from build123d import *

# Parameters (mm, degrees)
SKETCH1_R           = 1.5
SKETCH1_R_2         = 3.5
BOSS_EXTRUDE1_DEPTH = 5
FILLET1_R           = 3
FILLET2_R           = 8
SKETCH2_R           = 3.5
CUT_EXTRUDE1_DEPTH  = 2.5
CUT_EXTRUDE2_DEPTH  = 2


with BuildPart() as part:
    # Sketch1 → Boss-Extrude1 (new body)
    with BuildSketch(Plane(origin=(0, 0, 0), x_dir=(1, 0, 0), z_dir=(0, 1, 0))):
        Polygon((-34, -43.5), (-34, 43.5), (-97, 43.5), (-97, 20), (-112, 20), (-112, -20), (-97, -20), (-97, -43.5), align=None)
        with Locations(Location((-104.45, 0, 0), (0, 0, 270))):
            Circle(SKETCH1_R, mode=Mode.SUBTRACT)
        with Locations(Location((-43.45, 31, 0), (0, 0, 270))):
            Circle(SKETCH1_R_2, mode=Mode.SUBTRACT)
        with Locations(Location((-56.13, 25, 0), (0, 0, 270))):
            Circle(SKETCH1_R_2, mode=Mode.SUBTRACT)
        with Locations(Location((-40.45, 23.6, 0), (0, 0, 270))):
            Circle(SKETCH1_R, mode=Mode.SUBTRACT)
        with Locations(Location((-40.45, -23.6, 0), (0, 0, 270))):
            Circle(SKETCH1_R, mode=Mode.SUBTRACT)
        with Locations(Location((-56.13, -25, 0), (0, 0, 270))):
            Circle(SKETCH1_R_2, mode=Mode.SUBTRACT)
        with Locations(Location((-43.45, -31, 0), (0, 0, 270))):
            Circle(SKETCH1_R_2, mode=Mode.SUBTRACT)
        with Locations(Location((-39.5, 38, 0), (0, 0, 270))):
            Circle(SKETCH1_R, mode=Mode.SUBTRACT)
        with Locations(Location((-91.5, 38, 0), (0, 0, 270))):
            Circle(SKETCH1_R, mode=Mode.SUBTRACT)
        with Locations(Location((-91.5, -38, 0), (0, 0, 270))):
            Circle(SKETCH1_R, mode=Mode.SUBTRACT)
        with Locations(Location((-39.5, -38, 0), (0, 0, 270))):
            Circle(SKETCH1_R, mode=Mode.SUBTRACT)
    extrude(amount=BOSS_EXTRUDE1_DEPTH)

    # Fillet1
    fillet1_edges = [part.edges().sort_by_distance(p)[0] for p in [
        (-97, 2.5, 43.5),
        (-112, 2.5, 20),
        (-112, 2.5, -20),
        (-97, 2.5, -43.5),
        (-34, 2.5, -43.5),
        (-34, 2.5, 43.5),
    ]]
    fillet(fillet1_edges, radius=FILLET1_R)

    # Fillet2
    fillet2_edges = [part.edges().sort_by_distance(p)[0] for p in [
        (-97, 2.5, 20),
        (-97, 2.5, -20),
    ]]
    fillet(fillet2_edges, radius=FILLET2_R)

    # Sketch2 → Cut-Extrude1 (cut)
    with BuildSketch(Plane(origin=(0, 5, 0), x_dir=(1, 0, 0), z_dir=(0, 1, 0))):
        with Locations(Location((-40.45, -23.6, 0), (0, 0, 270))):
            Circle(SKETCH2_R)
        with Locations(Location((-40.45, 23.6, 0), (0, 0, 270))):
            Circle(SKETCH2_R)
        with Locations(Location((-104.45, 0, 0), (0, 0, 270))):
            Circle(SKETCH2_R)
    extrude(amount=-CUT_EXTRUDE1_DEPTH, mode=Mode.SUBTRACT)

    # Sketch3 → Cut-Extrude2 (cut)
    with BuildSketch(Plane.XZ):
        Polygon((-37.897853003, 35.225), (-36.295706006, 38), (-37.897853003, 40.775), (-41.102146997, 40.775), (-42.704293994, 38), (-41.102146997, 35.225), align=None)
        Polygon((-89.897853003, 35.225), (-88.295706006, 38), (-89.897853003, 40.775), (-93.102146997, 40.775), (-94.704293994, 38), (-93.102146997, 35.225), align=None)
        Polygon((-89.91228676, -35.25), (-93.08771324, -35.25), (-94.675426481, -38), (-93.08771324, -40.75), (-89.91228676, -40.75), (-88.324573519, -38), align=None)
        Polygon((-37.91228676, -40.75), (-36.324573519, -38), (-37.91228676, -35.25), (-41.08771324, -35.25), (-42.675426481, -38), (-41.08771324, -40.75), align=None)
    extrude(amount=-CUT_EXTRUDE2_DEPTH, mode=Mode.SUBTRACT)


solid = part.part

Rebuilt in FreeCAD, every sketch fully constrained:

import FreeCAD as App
import Part
import Sketcher
from FreeCAD import Vector
Q = App.Units.Quantity


def edges_at(feature, points):
    """Names of the edges that pass closest to the given points."""
    edges = feature.Shape.Edges
    near = lambda p: min(range(len(edges)), key=lambda i: edges[i].distToShape(Part.Vertex(*p))[0])
    return sorted({f"Edge{near(p) + 1}" for p in points})

doc = App.newDocument("Part")
params = doc.addObject("Spreadsheet::Sheet", "Params")
for row, (alias, value) in enumerate([
    ("sketch1_diameter", "3 mm"),
    ("sketch1_diameter2", "7 mm"),
    ("sketch1_width", "63 mm"),
    ("sketch1_width2", "15 mm"),
    ("sketch1_height", "87 mm"),
    ("pad1_length", "5 mm"),
    ("fillet_radius", "3 mm"),
    ("fillet2_radius", "8 mm"),
    ("sketch2_diameter", "7 mm"),
    ("pocket1_length", "2.5 mm"),
    ("pocket2_length", "2 mm"),
], start=1):
    params.set(f"A{row}", alias)
    params.set(f"B{row}", "=" + value)
    params.setAlias(f"B{row}", alias)

body = doc.addObject("PartDesign::Body", "Body")

# Sketch on XZ plane
sketch1 = body.newObject("Sketcher::SketchObject", "Sketch")
sketch1.AttachmentSupport = (doc.getObject("XZ_Plane"), [""])
sketch1.MapMode = "FlatFace"
sketch1.addGeometry(Part.LineSegment(Vector(-34, 43.5, 0), Vector(-34, -43.5, 0)), False)
sketch1.addGeometry(Part.LineSegment(Vector(-34, -43.5, 0), Vector(-97, -43.5, 0)), False)
sketch1.addGeometry(Part.LineSegment(Vector(-97, -43.5, 0), Vector(-97, -20, 0)), False)
sketch1.addGeometry(Part.LineSegment(Vector(-97, -20, 0), Vector(-112, -20, 0)), False)
sketch1.addGeometry(Part.LineSegment(Vector(-112, -20, 0), Vector(-112, 20, 0)), False)
sketch1.addGeometry(Part.LineSegment(Vector(-112, 20, 0), Vector(-97, 20, 0)), False)
sketch1.addGeometry(Part.LineSegment(Vector(-97, 20, 0), Vector(-97, 43.5, 0)), False)
sketch1.addGeometry(Part.LineSegment(Vector(-97, 43.5, 0), Vector(-34, 43.5, 0)), False)
sketch1.addGeometry(Part.Circle(Vector(-91.5, 38, 0), Vector(0, 0, 1), 1.5), False)
sketch1.addGeometry(Part.Circle(Vector(-56.1, 25, 0), Vector(0, 0, 1), 3.5), False)
sketch1.addGeometry(Part.Circle(Vector(-39.5, 38, 0), Vector(0, 0, 1), 1.5), False)
sketch1.addGeometry(Part.Circle(Vector(-43.5, 31, 0), Vector(0, 0, 1), 3.5), False)
sketch1.addGeometry(Part.Circle(Vector(-40.5, 23.6, 0), Vector(0, 0, 1), 1.5), False)
sketch1.addGeometry(Part.Circle(Vector(-104.5, 0, 0), Vector(0, 0, 1), 1.5), False)
sketch1.addGeometry(Part.Circle(Vector(-91.5, -38, 0), Vector(0, 0, 1), 1.5), False)
sketch1.addGeometry(Part.Circle(Vector(-56.1, -25, 0), Vector(0, 0, 1), 3.5), False)
sketch1.addGeometry(Part.Circle(Vector(-40.5, -23.6, 0), Vector(0, 0, 1), 1.5), False)
sketch1.addGeometry(Part.Circle(Vector(-43.5, -31, 0), Vector(0, 0, 1), 3.5), False)
sketch1.addGeometry(Part.Circle(Vector(-39.5, -38, 0), Vector(0, 0, 1), 1.5), False)
sketch1.addConstraint(Sketcher.Constraint("Coincident", 0, 2, 1, 1))
sketch1.addConstraint(Sketcher.Constraint("Coincident", 1, 2, 2, 1))
sketch1.addConstraint(Sketcher.Constraint("Coincident", 2, 2, 3, 1))
sketch1.addConstraint(Sketcher.Constraint("Coincident", 3, 2, 4, 1))
sketch1.addConstraint(Sketcher.Constraint("Coincident", 4, 2, 5, 1))
sketch1.addConstraint(Sketcher.Constraint("Coincident", 5, 2, 6, 1))
sketch1.addConstraint(Sketcher.Constraint("Coincident", 6, 2, 7, 1))
sketch1.addConstraint(Sketcher.Constraint("Coincident", 7, 2, 0, 1))
sketch1.addConstraint(Sketcher.Constraint("Vertical", 0))
sketch1.addConstraint(Sketcher.Constraint("Horizontal", 1))
sketch1.addConstraint(Sketcher.Constraint("Vertical", 2))
sketch1.addConstraint(Sketcher.Constraint("Horizontal", 3))
sketch1.addConstraint(Sketcher.Constraint("Vertical", 4))
sketch1.addConstraint(Sketcher.Constraint("Horizontal", 5))
sketch1.addConstraint(Sketcher.Constraint("Vertical", 6))
sketch1.addConstraint(Sketcher.Constraint("Horizontal", 7))
sketch1.addConstraint(Sketcher.Constraint("Equal", 8, 10))
sketch1.addConstraint(Sketcher.Constraint("Equal", 9, 11))
sketch1.addConstraint(Sketcher.Constraint("Equal", 10, 12))
sketch1.addConstraint(Sketcher.Constraint("Equal", 12, 13))
sketch1.addConstraint(Sketcher.Constraint("Equal", 13, 14))
sketch1.addConstraint(Sketcher.Constraint("Equal", 11, 15))
sketch1.addConstraint(Sketcher.Constraint("Equal", 14, 16))
sketch1.addConstraint(Sketcher.Constraint("Equal", 15, 17))
sketch1.addConstraint(Sketcher.Constraint("Equal", 16, 18))
sketch1.addConstraint(Sketcher.Constraint("Symmetric", 8, 3, 14, 3, -1))
sketch1.addConstraint(Sketcher.Constraint("Symmetric", 9, 3, 15, 3, -1))
sketch1.addConstraint(Sketcher.Constraint("Symmetric", 12, 3, 16, 3, -1))
sketch1.addConstraint(Sketcher.Constraint("Symmetric", 11, 3, 17, 3, -1))
sketch1.addConstraint(Sketcher.Constraint("Symmetric", 10, 3, 18, 3, -1))
sketch1.addConstraint(Sketcher.Constraint("Symmetric", 2, 2, 5, 2, -1))
sketch1.addConstraint(Sketcher.Constraint("PointOnObject", 13, 3, -1))
sketch1.addConstraint(Sketcher.Constraint("Horizontal", 8, 3, 10, 3))
sketch1.addConstraint(Sketcher.Constraint("Equal", 2, 6))
sketch1.addConstraint(Sketcher.Constraint("Diameter", 8, Q("3 mm")))
sketch1.addConstraint(Sketcher.Constraint("Diameter", 9, Q("7 mm")))
sketch1.addConstraint(Sketcher.Constraint("DistanceX", 1, 2, 1, 1, Q("63 mm")))
sketch1.addConstraint(Sketcher.Constraint("DistanceX", 3, 2, 3, 1, Q("15 mm")))
sketch1.addConstraint(Sketcher.Constraint("DistanceY", 0, 2, 0, 1, Q("87 mm")))
sketch1.addConstraint(Sketcher.Constraint("DistanceY", 4, 1, 4, 2, Q("40 mm")))
sketch1.addConstraint(Sketcher.Constraint("DistanceY", -1, 1, 8, 3, Q("38 mm")))
sketch1.addConstraint(Sketcher.Constraint("DistanceY", -1, 1, 9, 3, Q("25 mm")))
sketch1.addConstraint(Sketcher.Constraint("DistanceY", -1, 1, 11, 3, Q("31 mm")))
sketch1.addConstraint(Sketcher.Constraint("DistanceX", 0, 2, -1, 1, Q("34 mm")))
sketch1.addConstraint(Sketcher.Constraint("DistanceX", 8, 3, 10, 3, Q("52 mm")))
sketch1.addConstraint(Sketcher.Constraint("DistanceX", 11, 3, 12, 3, Q("3 mm")))
sketch1.addConstraint(Sketcher.Constraint("DistanceX", 13, 3, 12, 3, Q("64 mm")))
sketch1.addConstraint(Sketcher.Constraint("DistanceX", 8, 3, -1, 1, Q("91.5 mm")))
sketch1.addConstraint(Sketcher.Constraint("DistanceY", -1, 1, 12, 3, Q("23.6 mm")))
sketch1.addConstraint(Sketcher.Constraint("DistanceX", 9, 3, -1, 1, Q("56.13 mm")))
sketch1.addConstraint(Sketcher.Constraint("DistanceX", 11, 3, -1, 1, Q("43.45 mm")))
sketch1.setExpression("Constraints[34]", "Params.sketch1_diameter")
sketch1.setExpression("Constraints[35]", "Params.sketch1_diameter2")
sketch1.setExpression("Constraints[36]", "Params.sketch1_width")
sketch1.setExpression("Constraints[37]", "Params.sketch1_width2")
sketch1.setExpression("Constraints[38]", "Params.sketch1_height")
pad1 = body.newObject("PartDesign::Pad", "Pad")
pad1.Profile = sketch1
pad1.setExpression("Length", "Params.pad1_length")
pad1.Reversed = True
doc.recompute()

fillet = body.newObject("PartDesign::Fillet", "Fillet")
fillet.Base = (pad1, edges_at(pad1, [
    (-97, 2.5, 43.5),
    (-112, 2.5, 20),
    (-112, 2.5, -20),
    (-97, 2.5, -43.5),
    (-34, 2.5, -43.5),
    (-34, 2.5, 43.5),
]))
fillet.setExpression("Radius", "Params.fillet_radius")
doc.recompute()

fillet2 = body.newObject("PartDesign::Fillet", "Fillet001")
fillet2.Base = (fillet, edges_at(fillet, [(-97, 2.5, 20), (-97, 2.5, -20)]))
fillet2.setExpression("Radius", "Params.fillet2_radius")

# Sketch on XZ plane
sketch2 = body.newObject("Sketcher::SketchObject", "Sketch001")
sketch2.AttachmentSupport = (doc.getObject("XZ_Plane"), [""])
sketch2.MapMode = "FlatFace"
sketch2.AttachmentOffset = App.Placement(Vector(0, 0, -5), App.Rotation())
sketch2.addGeometry(Part.Circle(Vector(-40.5, 23.6, 0), Vector(0, 0, 1), 3.5), False)
sketch2.addGeometry(Part.Circle(Vector(-40.5, -23.6, 0), Vector(0, 0, 1), 3.5), False)
sketch2.addGeometry(Part.Circle(Vector(-104.5, 0, 0), Vector(0, 0, 1), 3.5), False)
sketch2.addConstraint(Sketcher.Constraint("Equal", 0, 1))
sketch2.addConstraint(Sketcher.Constraint("Equal", 1, 2))
sketch2.addConstraint(Sketcher.Constraint("Symmetric", 0, 3, 1, 3, -1))
sketch2.addConstraint(Sketcher.Constraint("PointOnObject", 2, 3, -1))
sketch2.addConstraint(Sketcher.Constraint("Diameter", 0, Q("7 mm")))
sketch2.addConstraint(Sketcher.Constraint("DistanceX", 2, 3, 0, 3, Q("64 mm")))
sketch2.addConstraint(Sketcher.Constraint("DistanceY", -1, 1, 0, 3, Q("23.6 mm")))
sketch2.addConstraint(Sketcher.Constraint("DistanceX", 0, 3, -1, 1, Q("40.45 mm")))
sketch2.setExpression("Constraints[4]", "Params.sketch2_diameter")
pocket1 = body.newObject("PartDesign::Pocket", "Pocket")
pocket1.Profile = sketch2
pocket1.setExpression("Length", "Params.pocket1_length")
pocket1.Reversed = True

# Sketch on XZ plane
sketch3 = body.newObject("Sketcher::SketchObject", "Sketch002")
sketch3.AttachmentSupport = (doc.getObject("XZ_Plane"), [""])
sketch3.MapMode = "FlatFace"
sketch3.addGeometry(Part.LineSegment(Vector(-37.9, 35.2, 0), Vector(-36.3, 38, 0)), False)
sketch3.addGeometry(Part.LineSegment(Vector(-36.3, 38, 0), Vector(-37.9, 40.8, 0)), False)
sketch3.addGeometry(Part.LineSegment(Vector(-37.9, 40.8, 0), Vector(-41.1, 40.8, 0)), False)
sketch3.addGeometry(Part.LineSegment(Vector(-41.1, 40.8, 0), Vector(-42.7, 38, 0)), False)
sketch3.addGeometry(Part.LineSegment(Vector(-42.7, 38, 0), Vector(-41.1, 35.2, 0)), False)
sketch3.addGeometry(Part.LineSegment(Vector(-41.1, 35.2, 0), Vector(-37.9, 35.2, 0)), False)
sketch3.addGeometry(Part.LineSegment(Vector(-89.9, 35.2, 0), Vector(-88.3, 38, 0)), False)
sketch3.addGeometry(Part.LineSegment(Vector(-88.3, 38, 0), Vector(-89.9, 40.8, 0)), False)
sketch3.addGeometry(Part.LineSegment(Vector(-89.9, 40.8, 0), Vector(-93.1, 40.8, 0)), False)
sketch3.addGeometry(Part.LineSegment(Vector(-93.1, 40.8, 0), Vector(-94.7, 38, 0)), False)
sketch3.addGeometry(Part.LineSegment(Vector(-94.7, 38, 0), Vector(-93.1, 35.2, 0)), False)
sketch3.addGeometry(Part.LineSegment(Vector(-93.1, 35.2, 0), Vector(-89.9, 35.2, 0)), False)
sketch3.addGeometry(Part.LineSegment(Vector(-89.9, -35.2, 0), Vector(-93.1, -35.2, 0)), False)
sketch3.addGeometry(Part.LineSegment(Vector(-93.1, -35.2, 0), Vector(-94.7, -38, 0)), False)
sketch3.addGeometry(Part.LineSegment(Vector(-94.7, -38, 0), Vector(-93.1, -40.8, 0)), False)
sketch3.addGeometry(Part.LineSegment(Vector(-93.1, -40.8, 0), Vector(-89.9, -40.8, 0)), False)
sketch3.addGeometry(Part.LineSegment(Vector(-89.9, -40.8, 0), Vector(-88.3, -38, 0)), False)
sketch3.addGeometry(Part.LineSegment(Vector(-88.3, -38, 0), Vector(-89.9, -35.2, 0)), False)
sketch3.addGeometry(Part.LineSegment(Vector(-37.9, -40.8, 0), Vector(-36.3, -38, 0)), False)
sketch3.addGeometry(Part.LineSegment(Vector(-36.3, -38, 0), Vector(-37.9, -35.2, 0)), False)
sketch3.addGeometry(Part.LineSegment(Vector(-37.9, -35.2, 0), Vector(-41.1, -35.2, 0)), False)
sketch3.addGeometry(Part.LineSegment(Vector(-41.1, -35.2, 0), Vector(-42.7, -38, 0)), False)
sketch3.addGeometry(Part.LineSegment(Vector(-42.7, -38, 0), Vector(-41.1, -40.8, 0)), False)
sketch3.addGeometry(Part.LineSegment(Vector(-41.1, -40.8, 0), Vector(-37.9, -40.8, 0)), False)
sketch3.addConstraint(Sketcher.Constraint("Coincident", 0, 2, 1, 1))
sketch3.addConstraint(Sketcher.Constraint("Coincident", 1, 2, 2, 1))
sketch3.addConstraint(Sketcher.Constraint("Coincident", 2, 2, 3, 1))
sketch3.addConstraint(Sketcher.Constraint("Coincident", 3, 2, 4, 1))
sketch3.addConstraint(Sketcher.Constraint("Coincident", 4, 2, 5, 1))
sketch3.addConstraint(Sketcher.Constraint("Coincident", 5, 2, 0, 1))
sketch3.addConstraint(Sketcher.Constraint("Coincident", 6, 2, 7, 1))
sketch3.addConstraint(Sketcher.Constraint("Coincident", 7, 2, 8, 1))
sketch3.addConstraint(Sketcher.Constraint("Coincident", 8, 2, 9, 1))
sketch3.addConstraint(Sketcher.Constraint("Coincident", 9, 2, 10, 1))
sketch3.addConstraint(Sketcher.Constraint("Coincident", 10, 2, 11, 1))
sketch3.addConstraint(Sketcher.Constraint("Coincident", 11, 2, 6, 1))
sketch3.addConstraint(Sketcher.Constraint("Coincident", 12, 2, 13, 1))
sketch3.addConstraint(Sketcher.Constraint("Coincident", 13, 2, 14, 1))
sketch3.addConstraint(Sketcher.Constraint("Coincident", 14, 2, 15, 1))
sketch3.addConstraint(Sketcher.Constraint("Coincident", 15, 2, 16, 1))
sketch3.addConstraint(Sketcher.Constraint("Coincident", 16, 2, 17, 1))
sketch3.addConstraint(Sketcher.Constraint("Coincident", 17, 2, 12, 1))
sketch3.addConstraint(Sketcher.Constraint("Coincident", 18, 2, 19, 1))
sketch3.addConstraint(Sketcher.Constraint("Coincident", 19, 2, 20, 1))
sketch3.addConstraint(Sketcher.Constraint("Coincident", 20, 2, 21, 1))
sketch3.addConstraint(Sketcher.Constraint("Coincident", 21, 2, 22, 1))
sketch3.addConstraint(Sketcher.Constraint("Coincident", 22, 2, 23, 1))
sketch3.addConstraint(Sketcher.Constraint("Coincident", 23, 2, 18, 1))
sketch3.addConstraint(Sketcher.Constraint("Horizontal", 2))
sketch3.addConstraint(Sketcher.Constraint("Horizontal", 5))
sketch3.addConstraint(Sketcher.Constraint("Horizontal", 8))
sketch3.addConstraint(Sketcher.Constraint("Horizontal", 11))
sketch3.addConstraint(Sketcher.Constraint("Horizontal", 12))
sketch3.addConstraint(Sketcher.Constraint("Horizontal", 15))
sketch3.addConstraint(Sketcher.Constraint("Horizontal", 20))
sketch3.addConstraint(Sketcher.Constraint("Horizontal", 23))
sketch3.addConstraint(Sketcher.Constraint("Parallel", 0, 3))
sketch3.addConstraint(Sketcher.Constraint("Parallel", 1, 4))
sketch3.addConstraint(Sketcher.Constraint("Parallel", 3, 6))
sketch3.addConstraint(Sketcher.Constraint("Parallel", 4, 7))
sketch3.addConstraint(Sketcher.Constraint("Parallel", 6, 9))
sketch3.addConstraint(Sketcher.Constraint("Parallel", 7, 10))
sketch3.addConstraint(Sketcher.Constraint("Parallel", 9, 13))
sketch3.addConstraint(Sketcher.Constraint("Parallel", 10, 14))
sketch3.addConstraint(Sketcher.Constraint("Parallel", 13, 16))
sketch3.addConstraint(Sketcher.Constraint("Parallel", 14, 17))
sketch3.addConstraint(Sketcher.Constraint("Parallel", 16, 18))
sketch3.addConstraint(Sketcher.Constraint("Parallel", 17, 19))
sketch3.addConstraint(Sketcher.Constraint("Parallel", 18, 21))
sketch3.addConstraint(Sketcher.Constraint("Parallel", 19, 22))
sketch3.addConstraint(Sketcher.Constraint("Horizontal", 0, 2, 3, 2))
sketch3.addConstraint(Sketcher.Constraint("Horizontal", 3, 2, 6, 2))
sketch3.addConstraint(Sketcher.Constraint("Horizontal", 2, 2, 7, 2))
sketch3.addConstraint(Sketcher.Constraint("Horizontal", 6, 2, 9, 2))
sketch3.addConstraint(Sketcher.Constraint("Horizontal", 5, 2, 10, 2))
sketch3.addConstraint(Sketcher.Constraint("Horizontal", 13, 2, 16, 2))
sketch3.addConstraint(Sketcher.Constraint("Horizontal", 16, 2, 18, 2))
sketch3.addConstraint(Sketcher.Constraint("Horizontal", 17, 2, 19, 2))
sketch3.addConstraint(Sketcher.Constraint("Horizontal", 18, 2, 21, 2))
sketch3.addConstraint(Sketcher.Constraint("Horizontal", 15, 2, 22, 2))
sketch3.addConstraint(Sketcher.Constraint("Vertical", 2, 2, 4, 2))
sketch3.addConstraint(Sketcher.Constraint("Vertical", 1, 2, 5, 2))
sketch3.addConstraint(Sketcher.Constraint("Vertical", 12, 2, 14, 2))
sketch3.addConstraint(Sketcher.Constraint("Equal", 5, 8))
sketch3.addConstraint(Sketcher.Constraint("Equal", 15, 20))
sketch3.addConstraint(Sketcher.Constraint("Angle", 0, Q("60 deg")))
sketch3.addConstraint(Sketcher.Constraint("DistanceY", -1, 1, 0, 2, Q("38 mm")))
sketch3.addConstraint(Sketcher.Constraint("DistanceY", 13, 2, -1, 1, Q("38 mm")))
sketch3.addConstraint(Sketcher.Constraint("DistanceX", 7, 2, 1, 2, Q("52 mm")))
sketch3.addConstraint(Sketcher.Constraint("DistanceX", 16, 2, 18, 2, Q("52 mm")))
sketch3.addConstraint(Sketcher.Constraint("DistanceY", 14, 2, 12, 2, Q("5.5 mm")))
sketch3.addConstraint(Sketcher.Constraint("DistanceY", 4, 2, 2, 2, Q("5.55 mm")))
sketch3.addConstraint(Sketcher.Constraint("DistanceX", 2, 2, 2, 1, Q("3.204294 mm")))
sketch3.addConstraint(Sketcher.Constraint("DistanceX", 12, 2, 12, 1, Q("3.175426 mm")))
sketch3.addConstraint(Sketcher.Constraint("DistanceX", 12, 2, 11, 2, Q("3.18986 mm")))
sketch3.addConstraint(Sketcher.Constraint("DistanceX", 0, 2, -1, 1, Q("36.295706 mm")))
pocket2 = body.newObject("PartDesign::Pocket", "Pocket001")
pocket2.Profile = sketch3
pocket2.setExpression("Length", "Params.pocket2_length")

doc.recompute()
